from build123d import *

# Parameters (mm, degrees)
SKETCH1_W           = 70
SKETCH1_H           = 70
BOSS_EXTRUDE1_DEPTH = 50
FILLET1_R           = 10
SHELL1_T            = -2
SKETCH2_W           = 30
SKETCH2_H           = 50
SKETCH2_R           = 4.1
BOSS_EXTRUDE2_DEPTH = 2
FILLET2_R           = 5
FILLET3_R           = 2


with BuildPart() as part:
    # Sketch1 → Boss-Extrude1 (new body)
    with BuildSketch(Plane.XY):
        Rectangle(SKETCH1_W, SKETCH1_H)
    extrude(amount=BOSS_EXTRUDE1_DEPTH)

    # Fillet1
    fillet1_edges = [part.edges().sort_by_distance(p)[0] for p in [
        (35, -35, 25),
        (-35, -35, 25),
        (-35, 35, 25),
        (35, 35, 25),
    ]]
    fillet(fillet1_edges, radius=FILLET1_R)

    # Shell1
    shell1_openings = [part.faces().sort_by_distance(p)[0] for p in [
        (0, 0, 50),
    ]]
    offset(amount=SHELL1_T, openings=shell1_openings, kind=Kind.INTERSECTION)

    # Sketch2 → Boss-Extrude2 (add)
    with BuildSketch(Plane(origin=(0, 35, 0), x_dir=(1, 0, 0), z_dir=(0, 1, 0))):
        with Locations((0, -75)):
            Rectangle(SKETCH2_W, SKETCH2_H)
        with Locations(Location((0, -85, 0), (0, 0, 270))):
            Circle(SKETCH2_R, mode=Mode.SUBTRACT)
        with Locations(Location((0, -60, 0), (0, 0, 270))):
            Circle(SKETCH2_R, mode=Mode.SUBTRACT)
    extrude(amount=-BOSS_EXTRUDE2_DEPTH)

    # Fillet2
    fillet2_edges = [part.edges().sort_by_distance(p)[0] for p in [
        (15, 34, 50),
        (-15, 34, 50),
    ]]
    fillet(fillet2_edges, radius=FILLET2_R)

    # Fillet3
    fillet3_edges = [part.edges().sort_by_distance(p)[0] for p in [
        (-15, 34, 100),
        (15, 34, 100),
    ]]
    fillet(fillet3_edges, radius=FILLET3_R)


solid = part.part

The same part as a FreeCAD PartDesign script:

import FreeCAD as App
import Part
import Sketcher
Q = App.Units.Quantity


def edges_at(feature, points):
    """Names of the edges that pass closest to the given points."""
    edges = feature.Shape.Edges
    near = lambda p: min(range(len(edges)), key=lambda i: edges[i].distToShape(Part.Vertex(*p))[0])
    return sorted({f"Edge{near(p) + 1}" for p in points})


def faces_at(feature, points):
    """Names of the faces that lie closest to the given points."""
    faces = feature.Shape.Faces
    near = lambda p: min(range(len(faces)), key=lambda i: faces[i].distToShape(Part.Vertex(*p))[0])
    return sorted({f"Face{near(p) + 1}" for p in points})

doc = App.newDocument("Part")
body = doc.addObject("PartDesign::Body", "Body")

# Sketch on XY plane
sketch1 = body.newObject("Sketcher::SketchObject", "Sketch")
sketch1.AttachmentSupport = (doc.getObject("XY_Plane"), [""])
sketch1.MapMode = "FlatFace"
sketch1.addGeometry([
    Part.LineSegment(App.Vector(-35, 35, 0), App.Vector(-35, -35, 0)),
    Part.LineSegment(App.Vector(-35, -35, 0), App.Vector(35, -35, 0)),
    Part.LineSegment(App.Vector(35, -35, 0), App.Vector(35, 35, 0)),
    Part.LineSegment(App.Vector(35, 35, 0), App.Vector(-35, 35, 0)),
], False)
sketch1.addConstraint([
    Sketcher.Constraint("Coincident", 0, 2, 1, 1),
    Sketcher.Constraint("Coincident", 1, 2, 2, 1),
    Sketcher.Constraint("Coincident", 2, 2, 3, 1),
    Sketcher.Constraint("Coincident", 3, 2, 0, 1),
    Sketcher.Constraint("Vertical", 0),
    Sketcher.Constraint("Horizontal", 1),
    Sketcher.Constraint("Vertical", 2),
    Sketcher.Constraint("Horizontal", 3),
    Sketcher.Constraint("Symmetric", 0, 2, 2, 2, -1, 1),
    Sketcher.Constraint("Equal", 3, 0),
    Sketcher.Constraint("DistanceX", 1, 1, 1, 2, Q("70 mm")),
])
pad1 = body.newObject("PartDesign::Pad", "Pad")
pad1.Profile = sketch1
pad1.Length = 50
doc.recompute()

fillet = body.newObject("PartDesign::Fillet", "Fillet")
fillet.Base = (pad1, edges_at(pad1, [
    (35, -35, 25),
    (-35, -35, 25),
    (-35, 35, 25),
    (35, 35, 25),
]))
fillet.Radius = 10
doc.recompute()

thickness = body.newObject("PartDesign::Thickness", "Thickness")
thickness.Base = (fillet, faces_at(fillet, [(0, 0, 50)]))
thickness.Value = 2
thickness.Reversed = True
thickness.Join = "Intersection"

# Sketch on XZ plane
sketch2 = body.newObject("Sketcher::SketchObject", "Sketch001")
sketch2.AttachmentSupport = (doc.getObject("XZ_Plane"), [""])
sketch2.MapMode = "FlatFace"
sketch2.AttachmentOffset = App.Placement(App.Vector(0, 0, -35), App.Rotation())
sketch2.addGeometry([
    Part.LineSegment(App.Vector(-15, 50, 0), App.Vector(-15, 100, 0)),  # 0
    Part.LineSegment(App.Vector(-15, 100, 0), App.Vector(15, 100, 0)),  # 1
    Part.LineSegment(App.Vector(15, 100, 0), App.Vector(15, 50, 0)),  # 2
    Part.LineSegment(App.Vector(15, 50, 0), App.Vector(-15, 50, 0)),  # 3
    Part.Circle(App.Vector(0, 85, 0), App.Vector(0, 0, 1), 4.1),  # 4
    Part.Circle(App.Vector(0, 60, 0), App.Vector(0, 0, 1), 4.1),  # 5
], False)
sketch2.addConstraint([
    Sketcher.Constraint("Coincident", 0, 2, 1, 1),
    Sketcher.Constraint("Coincident", 1, 2, 2, 1),
    Sketcher.Constraint("Coincident", 2, 2, 3, 1),
    Sketcher.Constraint("Coincident", 3, 2, 0, 1),
    Sketcher.Constraint("Vertical", 0),
    Sketcher.Constraint("Horizontal", 1),
    Sketcher.Constraint("Vertical", 2),
    Sketcher.Constraint("Horizontal", 3),
    Sketcher.Constraint("Equal", 4, 5),
    Sketcher.Constraint("PointOnObject", 4, 3, -2),
    Sketcher.Constraint("PointOnObject", 5, 3, -2),
    Sketcher.Constraint("Diameter", 4, Q("8.2 mm")),
    Sketcher.Constraint("DistanceX", 1, 1, 1, 2, Q("30 mm")),
    Sketcher.Constraint("DistanceY", 0, 1, 0, 2, Q("50 mm")),
    Sketcher.Constraint("DistanceY", -1, 1, 4, 3, Q("85 mm")),
    Sketcher.Constraint("DistanceY", -1, 1, 5, 3, Q("60 mm")),
    Sketcher.Constraint("DistanceX", 0, 2, -1, 1, Q("15 mm")),
    Sketcher.Constraint("DistanceY", -1, 1, 0, 2, Q("100 mm")),
])
pad2 = body.newObject("PartDesign::Pad", "Pad001")
pad2.Profile = sketch2
pad2.Length = 2
doc.recompute()

fillet2 = body.newObject("PartDesign::Fillet", "Fillet001")
fillet2.Base = (pad2, edges_at(pad2, [(15, 34, 50), (-15, 34, 50)]))
fillet2.Radius = 5
doc.recompute()

fillet3 = body.newObject("PartDesign::Fillet", "Fillet002")
fillet3.Base = (fillet2, edges_at(fillet2, [(-15, 34, 100), (15, 34, 100)]))
fillet3.Radius = 2

doc.recompute()
